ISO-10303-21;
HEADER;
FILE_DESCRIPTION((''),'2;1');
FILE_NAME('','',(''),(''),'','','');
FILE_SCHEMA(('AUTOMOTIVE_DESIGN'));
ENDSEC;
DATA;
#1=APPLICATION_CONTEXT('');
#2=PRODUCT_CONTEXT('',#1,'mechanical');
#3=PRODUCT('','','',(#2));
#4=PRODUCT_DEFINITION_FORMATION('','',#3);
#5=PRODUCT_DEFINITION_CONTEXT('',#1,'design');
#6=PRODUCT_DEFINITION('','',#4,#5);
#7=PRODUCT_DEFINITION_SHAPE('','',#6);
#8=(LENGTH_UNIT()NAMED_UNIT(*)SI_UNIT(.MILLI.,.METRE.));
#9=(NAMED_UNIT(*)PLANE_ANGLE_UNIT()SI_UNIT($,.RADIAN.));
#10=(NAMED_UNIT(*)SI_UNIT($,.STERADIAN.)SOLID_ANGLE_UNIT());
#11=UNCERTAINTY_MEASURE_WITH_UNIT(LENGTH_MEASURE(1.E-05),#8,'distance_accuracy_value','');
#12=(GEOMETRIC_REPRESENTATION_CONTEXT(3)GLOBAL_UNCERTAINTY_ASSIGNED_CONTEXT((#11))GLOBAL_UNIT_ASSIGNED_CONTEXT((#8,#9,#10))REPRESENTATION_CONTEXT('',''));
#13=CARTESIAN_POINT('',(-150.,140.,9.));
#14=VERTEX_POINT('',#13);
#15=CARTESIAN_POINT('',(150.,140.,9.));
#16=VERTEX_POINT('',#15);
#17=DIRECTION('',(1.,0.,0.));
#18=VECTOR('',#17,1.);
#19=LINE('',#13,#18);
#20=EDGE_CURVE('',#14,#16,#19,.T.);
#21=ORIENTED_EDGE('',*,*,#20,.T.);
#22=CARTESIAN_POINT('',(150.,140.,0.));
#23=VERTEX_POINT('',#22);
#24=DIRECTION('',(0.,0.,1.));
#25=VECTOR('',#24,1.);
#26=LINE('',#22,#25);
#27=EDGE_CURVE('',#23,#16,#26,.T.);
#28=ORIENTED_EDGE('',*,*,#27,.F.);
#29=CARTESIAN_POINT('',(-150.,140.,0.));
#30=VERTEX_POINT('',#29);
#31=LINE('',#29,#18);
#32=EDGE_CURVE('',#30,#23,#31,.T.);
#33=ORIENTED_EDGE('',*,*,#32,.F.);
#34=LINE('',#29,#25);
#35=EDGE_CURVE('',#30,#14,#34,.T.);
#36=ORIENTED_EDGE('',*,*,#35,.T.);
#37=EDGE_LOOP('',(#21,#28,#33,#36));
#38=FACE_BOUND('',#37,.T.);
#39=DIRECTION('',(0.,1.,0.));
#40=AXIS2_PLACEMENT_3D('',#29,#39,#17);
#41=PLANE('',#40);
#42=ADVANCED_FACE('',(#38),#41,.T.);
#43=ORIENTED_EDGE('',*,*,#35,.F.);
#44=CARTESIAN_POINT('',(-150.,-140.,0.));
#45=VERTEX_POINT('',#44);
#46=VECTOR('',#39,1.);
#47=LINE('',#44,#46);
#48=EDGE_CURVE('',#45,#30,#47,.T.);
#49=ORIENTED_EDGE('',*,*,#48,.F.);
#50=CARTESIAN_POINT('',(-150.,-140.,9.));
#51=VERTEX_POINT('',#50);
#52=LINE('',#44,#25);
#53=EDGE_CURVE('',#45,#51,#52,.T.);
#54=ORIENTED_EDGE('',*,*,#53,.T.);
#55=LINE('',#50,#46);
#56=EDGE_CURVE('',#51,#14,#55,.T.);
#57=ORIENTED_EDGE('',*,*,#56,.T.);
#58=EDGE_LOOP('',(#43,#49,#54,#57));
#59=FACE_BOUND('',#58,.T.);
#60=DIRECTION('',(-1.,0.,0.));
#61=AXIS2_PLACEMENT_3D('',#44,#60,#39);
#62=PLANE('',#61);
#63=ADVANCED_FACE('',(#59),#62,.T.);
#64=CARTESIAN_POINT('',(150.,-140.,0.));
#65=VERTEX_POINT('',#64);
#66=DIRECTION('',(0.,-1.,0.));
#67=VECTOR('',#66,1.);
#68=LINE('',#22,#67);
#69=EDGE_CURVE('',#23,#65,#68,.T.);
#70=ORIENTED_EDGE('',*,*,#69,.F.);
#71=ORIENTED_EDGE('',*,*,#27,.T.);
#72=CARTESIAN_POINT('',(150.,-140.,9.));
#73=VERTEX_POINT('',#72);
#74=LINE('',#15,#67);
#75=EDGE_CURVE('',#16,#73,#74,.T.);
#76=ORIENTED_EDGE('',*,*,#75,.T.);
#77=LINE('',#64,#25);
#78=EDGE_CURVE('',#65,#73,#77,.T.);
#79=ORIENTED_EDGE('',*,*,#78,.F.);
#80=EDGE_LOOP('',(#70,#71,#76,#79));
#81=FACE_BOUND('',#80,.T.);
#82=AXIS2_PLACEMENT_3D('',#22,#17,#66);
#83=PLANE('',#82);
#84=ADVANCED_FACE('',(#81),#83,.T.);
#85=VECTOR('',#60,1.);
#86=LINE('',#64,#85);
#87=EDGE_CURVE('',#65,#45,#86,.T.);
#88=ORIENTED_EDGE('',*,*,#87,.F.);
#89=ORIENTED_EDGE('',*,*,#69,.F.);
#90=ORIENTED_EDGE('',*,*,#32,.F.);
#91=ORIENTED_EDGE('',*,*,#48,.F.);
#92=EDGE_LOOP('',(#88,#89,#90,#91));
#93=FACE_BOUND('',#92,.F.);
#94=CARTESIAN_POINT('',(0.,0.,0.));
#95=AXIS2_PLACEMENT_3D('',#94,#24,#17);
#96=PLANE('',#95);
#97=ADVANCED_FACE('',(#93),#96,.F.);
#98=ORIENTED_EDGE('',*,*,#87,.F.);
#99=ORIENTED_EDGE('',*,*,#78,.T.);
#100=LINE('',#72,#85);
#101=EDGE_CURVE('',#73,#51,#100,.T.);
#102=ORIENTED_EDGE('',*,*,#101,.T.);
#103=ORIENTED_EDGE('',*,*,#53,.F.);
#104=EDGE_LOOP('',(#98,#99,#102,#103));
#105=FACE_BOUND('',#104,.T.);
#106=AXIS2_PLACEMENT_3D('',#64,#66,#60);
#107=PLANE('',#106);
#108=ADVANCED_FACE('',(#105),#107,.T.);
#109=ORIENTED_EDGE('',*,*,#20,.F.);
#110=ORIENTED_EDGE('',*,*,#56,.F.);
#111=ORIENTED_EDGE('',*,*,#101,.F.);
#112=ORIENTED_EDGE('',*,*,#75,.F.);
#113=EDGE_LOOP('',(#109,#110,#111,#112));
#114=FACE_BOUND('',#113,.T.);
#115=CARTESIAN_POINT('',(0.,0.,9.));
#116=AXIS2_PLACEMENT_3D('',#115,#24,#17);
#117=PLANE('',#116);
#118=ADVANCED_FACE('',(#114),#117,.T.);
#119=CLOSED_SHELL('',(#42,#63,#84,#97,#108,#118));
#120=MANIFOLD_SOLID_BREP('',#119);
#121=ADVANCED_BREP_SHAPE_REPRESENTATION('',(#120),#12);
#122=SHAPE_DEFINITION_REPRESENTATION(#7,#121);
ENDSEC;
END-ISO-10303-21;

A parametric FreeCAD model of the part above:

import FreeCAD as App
import Part
import Sketcher
from FreeCAD import Vector
Q = App.Units.Quantity

doc = App.newDocument("Part")
params = doc.addObject("Spreadsheet::Sheet", "Params")
for row, (alias, value) in enumerate([
    ("sketch1_width", "300 mm"),
    ("sketch1_height", "280 mm"),
    ("pad1_length", "9 mm"),
], start=1):
    params.set(f"A{row}", alias)
    params.set(f"B{row}", "=" + value)
    params.setAlias(f"B{row}", alias)

body = doc.addObject("PartDesign::Body", "Body")

# Sketch on XY plane
sketch1 = body.newObject("Sketcher::SketchObject", "Sketch")
sketch1.AttachmentSupport = (doc.getObject("XY_Plane"), [""])
sketch1.MapMode = "FlatFace"
sketch1.addGeometry(Part.LineSegment(Vector(-150, -140, 0), Vector(150, -140, 0)), False)
sketch1.addGeometry(Part.LineSegment(Vector(150, -140, 0), Vector(150, 140, 0)), False)
sketch1.addGeometry(Part.LineSegment(Vector(150, 140, 0), Vector(-150, 140, 0)), False)
sketch1.addGeometry(Part.LineSegment(Vector(-150, 140, 0), Vector(-150, -140, 0)), False)
sketch1.addConstraint(Sketcher.Constraint("Coincident", 0, 2, 1, 1))
sketch1.addConstraint(Sketcher.Constraint("Coincident", 1, 2, 2, 1))
sketch1.addConstraint(Sketcher.Constraint("Coincident", 2, 2, 3, 1))
sketch1.addConstraint(Sketcher.Constraint("Coincident", 3, 2, 0, 1))
sketch1.addConstraint(Sketcher.Constraint("Horizontal", 0))
sketch1.addConstraint(Sketcher.Constraint("Vertical", 1))
sketch1.addConstraint(Sketcher.Constraint("Horizontal", 2))
sketch1.addConstraint(Sketcher.Constraint("Vertical", 3))
sketch1.addConstraint(Sketcher.Constraint("Symmetric", 0, 2, 2, 2, -1, 1))
sketch1.addConstraint(Sketcher.Constraint("DistanceX", 0, 1, 0, 2, Q("300 mm")))
sketch1.addConstraint(Sketcher.Constraint("DistanceY", 1, 1, 1, 2, Q("280 mm")))
sketch1.setExpression("Constraints[9]", "Params.sketch1_width")
sketch1.setExpression("Constraints[10]", "Params.sketch1_height")
pad1 = body.newObject("PartDesign::Pad", "Pad")
pad1.Profile = sketch1
pad1.setExpression("Length", "Params.pad1_length")

doc.recompute()
